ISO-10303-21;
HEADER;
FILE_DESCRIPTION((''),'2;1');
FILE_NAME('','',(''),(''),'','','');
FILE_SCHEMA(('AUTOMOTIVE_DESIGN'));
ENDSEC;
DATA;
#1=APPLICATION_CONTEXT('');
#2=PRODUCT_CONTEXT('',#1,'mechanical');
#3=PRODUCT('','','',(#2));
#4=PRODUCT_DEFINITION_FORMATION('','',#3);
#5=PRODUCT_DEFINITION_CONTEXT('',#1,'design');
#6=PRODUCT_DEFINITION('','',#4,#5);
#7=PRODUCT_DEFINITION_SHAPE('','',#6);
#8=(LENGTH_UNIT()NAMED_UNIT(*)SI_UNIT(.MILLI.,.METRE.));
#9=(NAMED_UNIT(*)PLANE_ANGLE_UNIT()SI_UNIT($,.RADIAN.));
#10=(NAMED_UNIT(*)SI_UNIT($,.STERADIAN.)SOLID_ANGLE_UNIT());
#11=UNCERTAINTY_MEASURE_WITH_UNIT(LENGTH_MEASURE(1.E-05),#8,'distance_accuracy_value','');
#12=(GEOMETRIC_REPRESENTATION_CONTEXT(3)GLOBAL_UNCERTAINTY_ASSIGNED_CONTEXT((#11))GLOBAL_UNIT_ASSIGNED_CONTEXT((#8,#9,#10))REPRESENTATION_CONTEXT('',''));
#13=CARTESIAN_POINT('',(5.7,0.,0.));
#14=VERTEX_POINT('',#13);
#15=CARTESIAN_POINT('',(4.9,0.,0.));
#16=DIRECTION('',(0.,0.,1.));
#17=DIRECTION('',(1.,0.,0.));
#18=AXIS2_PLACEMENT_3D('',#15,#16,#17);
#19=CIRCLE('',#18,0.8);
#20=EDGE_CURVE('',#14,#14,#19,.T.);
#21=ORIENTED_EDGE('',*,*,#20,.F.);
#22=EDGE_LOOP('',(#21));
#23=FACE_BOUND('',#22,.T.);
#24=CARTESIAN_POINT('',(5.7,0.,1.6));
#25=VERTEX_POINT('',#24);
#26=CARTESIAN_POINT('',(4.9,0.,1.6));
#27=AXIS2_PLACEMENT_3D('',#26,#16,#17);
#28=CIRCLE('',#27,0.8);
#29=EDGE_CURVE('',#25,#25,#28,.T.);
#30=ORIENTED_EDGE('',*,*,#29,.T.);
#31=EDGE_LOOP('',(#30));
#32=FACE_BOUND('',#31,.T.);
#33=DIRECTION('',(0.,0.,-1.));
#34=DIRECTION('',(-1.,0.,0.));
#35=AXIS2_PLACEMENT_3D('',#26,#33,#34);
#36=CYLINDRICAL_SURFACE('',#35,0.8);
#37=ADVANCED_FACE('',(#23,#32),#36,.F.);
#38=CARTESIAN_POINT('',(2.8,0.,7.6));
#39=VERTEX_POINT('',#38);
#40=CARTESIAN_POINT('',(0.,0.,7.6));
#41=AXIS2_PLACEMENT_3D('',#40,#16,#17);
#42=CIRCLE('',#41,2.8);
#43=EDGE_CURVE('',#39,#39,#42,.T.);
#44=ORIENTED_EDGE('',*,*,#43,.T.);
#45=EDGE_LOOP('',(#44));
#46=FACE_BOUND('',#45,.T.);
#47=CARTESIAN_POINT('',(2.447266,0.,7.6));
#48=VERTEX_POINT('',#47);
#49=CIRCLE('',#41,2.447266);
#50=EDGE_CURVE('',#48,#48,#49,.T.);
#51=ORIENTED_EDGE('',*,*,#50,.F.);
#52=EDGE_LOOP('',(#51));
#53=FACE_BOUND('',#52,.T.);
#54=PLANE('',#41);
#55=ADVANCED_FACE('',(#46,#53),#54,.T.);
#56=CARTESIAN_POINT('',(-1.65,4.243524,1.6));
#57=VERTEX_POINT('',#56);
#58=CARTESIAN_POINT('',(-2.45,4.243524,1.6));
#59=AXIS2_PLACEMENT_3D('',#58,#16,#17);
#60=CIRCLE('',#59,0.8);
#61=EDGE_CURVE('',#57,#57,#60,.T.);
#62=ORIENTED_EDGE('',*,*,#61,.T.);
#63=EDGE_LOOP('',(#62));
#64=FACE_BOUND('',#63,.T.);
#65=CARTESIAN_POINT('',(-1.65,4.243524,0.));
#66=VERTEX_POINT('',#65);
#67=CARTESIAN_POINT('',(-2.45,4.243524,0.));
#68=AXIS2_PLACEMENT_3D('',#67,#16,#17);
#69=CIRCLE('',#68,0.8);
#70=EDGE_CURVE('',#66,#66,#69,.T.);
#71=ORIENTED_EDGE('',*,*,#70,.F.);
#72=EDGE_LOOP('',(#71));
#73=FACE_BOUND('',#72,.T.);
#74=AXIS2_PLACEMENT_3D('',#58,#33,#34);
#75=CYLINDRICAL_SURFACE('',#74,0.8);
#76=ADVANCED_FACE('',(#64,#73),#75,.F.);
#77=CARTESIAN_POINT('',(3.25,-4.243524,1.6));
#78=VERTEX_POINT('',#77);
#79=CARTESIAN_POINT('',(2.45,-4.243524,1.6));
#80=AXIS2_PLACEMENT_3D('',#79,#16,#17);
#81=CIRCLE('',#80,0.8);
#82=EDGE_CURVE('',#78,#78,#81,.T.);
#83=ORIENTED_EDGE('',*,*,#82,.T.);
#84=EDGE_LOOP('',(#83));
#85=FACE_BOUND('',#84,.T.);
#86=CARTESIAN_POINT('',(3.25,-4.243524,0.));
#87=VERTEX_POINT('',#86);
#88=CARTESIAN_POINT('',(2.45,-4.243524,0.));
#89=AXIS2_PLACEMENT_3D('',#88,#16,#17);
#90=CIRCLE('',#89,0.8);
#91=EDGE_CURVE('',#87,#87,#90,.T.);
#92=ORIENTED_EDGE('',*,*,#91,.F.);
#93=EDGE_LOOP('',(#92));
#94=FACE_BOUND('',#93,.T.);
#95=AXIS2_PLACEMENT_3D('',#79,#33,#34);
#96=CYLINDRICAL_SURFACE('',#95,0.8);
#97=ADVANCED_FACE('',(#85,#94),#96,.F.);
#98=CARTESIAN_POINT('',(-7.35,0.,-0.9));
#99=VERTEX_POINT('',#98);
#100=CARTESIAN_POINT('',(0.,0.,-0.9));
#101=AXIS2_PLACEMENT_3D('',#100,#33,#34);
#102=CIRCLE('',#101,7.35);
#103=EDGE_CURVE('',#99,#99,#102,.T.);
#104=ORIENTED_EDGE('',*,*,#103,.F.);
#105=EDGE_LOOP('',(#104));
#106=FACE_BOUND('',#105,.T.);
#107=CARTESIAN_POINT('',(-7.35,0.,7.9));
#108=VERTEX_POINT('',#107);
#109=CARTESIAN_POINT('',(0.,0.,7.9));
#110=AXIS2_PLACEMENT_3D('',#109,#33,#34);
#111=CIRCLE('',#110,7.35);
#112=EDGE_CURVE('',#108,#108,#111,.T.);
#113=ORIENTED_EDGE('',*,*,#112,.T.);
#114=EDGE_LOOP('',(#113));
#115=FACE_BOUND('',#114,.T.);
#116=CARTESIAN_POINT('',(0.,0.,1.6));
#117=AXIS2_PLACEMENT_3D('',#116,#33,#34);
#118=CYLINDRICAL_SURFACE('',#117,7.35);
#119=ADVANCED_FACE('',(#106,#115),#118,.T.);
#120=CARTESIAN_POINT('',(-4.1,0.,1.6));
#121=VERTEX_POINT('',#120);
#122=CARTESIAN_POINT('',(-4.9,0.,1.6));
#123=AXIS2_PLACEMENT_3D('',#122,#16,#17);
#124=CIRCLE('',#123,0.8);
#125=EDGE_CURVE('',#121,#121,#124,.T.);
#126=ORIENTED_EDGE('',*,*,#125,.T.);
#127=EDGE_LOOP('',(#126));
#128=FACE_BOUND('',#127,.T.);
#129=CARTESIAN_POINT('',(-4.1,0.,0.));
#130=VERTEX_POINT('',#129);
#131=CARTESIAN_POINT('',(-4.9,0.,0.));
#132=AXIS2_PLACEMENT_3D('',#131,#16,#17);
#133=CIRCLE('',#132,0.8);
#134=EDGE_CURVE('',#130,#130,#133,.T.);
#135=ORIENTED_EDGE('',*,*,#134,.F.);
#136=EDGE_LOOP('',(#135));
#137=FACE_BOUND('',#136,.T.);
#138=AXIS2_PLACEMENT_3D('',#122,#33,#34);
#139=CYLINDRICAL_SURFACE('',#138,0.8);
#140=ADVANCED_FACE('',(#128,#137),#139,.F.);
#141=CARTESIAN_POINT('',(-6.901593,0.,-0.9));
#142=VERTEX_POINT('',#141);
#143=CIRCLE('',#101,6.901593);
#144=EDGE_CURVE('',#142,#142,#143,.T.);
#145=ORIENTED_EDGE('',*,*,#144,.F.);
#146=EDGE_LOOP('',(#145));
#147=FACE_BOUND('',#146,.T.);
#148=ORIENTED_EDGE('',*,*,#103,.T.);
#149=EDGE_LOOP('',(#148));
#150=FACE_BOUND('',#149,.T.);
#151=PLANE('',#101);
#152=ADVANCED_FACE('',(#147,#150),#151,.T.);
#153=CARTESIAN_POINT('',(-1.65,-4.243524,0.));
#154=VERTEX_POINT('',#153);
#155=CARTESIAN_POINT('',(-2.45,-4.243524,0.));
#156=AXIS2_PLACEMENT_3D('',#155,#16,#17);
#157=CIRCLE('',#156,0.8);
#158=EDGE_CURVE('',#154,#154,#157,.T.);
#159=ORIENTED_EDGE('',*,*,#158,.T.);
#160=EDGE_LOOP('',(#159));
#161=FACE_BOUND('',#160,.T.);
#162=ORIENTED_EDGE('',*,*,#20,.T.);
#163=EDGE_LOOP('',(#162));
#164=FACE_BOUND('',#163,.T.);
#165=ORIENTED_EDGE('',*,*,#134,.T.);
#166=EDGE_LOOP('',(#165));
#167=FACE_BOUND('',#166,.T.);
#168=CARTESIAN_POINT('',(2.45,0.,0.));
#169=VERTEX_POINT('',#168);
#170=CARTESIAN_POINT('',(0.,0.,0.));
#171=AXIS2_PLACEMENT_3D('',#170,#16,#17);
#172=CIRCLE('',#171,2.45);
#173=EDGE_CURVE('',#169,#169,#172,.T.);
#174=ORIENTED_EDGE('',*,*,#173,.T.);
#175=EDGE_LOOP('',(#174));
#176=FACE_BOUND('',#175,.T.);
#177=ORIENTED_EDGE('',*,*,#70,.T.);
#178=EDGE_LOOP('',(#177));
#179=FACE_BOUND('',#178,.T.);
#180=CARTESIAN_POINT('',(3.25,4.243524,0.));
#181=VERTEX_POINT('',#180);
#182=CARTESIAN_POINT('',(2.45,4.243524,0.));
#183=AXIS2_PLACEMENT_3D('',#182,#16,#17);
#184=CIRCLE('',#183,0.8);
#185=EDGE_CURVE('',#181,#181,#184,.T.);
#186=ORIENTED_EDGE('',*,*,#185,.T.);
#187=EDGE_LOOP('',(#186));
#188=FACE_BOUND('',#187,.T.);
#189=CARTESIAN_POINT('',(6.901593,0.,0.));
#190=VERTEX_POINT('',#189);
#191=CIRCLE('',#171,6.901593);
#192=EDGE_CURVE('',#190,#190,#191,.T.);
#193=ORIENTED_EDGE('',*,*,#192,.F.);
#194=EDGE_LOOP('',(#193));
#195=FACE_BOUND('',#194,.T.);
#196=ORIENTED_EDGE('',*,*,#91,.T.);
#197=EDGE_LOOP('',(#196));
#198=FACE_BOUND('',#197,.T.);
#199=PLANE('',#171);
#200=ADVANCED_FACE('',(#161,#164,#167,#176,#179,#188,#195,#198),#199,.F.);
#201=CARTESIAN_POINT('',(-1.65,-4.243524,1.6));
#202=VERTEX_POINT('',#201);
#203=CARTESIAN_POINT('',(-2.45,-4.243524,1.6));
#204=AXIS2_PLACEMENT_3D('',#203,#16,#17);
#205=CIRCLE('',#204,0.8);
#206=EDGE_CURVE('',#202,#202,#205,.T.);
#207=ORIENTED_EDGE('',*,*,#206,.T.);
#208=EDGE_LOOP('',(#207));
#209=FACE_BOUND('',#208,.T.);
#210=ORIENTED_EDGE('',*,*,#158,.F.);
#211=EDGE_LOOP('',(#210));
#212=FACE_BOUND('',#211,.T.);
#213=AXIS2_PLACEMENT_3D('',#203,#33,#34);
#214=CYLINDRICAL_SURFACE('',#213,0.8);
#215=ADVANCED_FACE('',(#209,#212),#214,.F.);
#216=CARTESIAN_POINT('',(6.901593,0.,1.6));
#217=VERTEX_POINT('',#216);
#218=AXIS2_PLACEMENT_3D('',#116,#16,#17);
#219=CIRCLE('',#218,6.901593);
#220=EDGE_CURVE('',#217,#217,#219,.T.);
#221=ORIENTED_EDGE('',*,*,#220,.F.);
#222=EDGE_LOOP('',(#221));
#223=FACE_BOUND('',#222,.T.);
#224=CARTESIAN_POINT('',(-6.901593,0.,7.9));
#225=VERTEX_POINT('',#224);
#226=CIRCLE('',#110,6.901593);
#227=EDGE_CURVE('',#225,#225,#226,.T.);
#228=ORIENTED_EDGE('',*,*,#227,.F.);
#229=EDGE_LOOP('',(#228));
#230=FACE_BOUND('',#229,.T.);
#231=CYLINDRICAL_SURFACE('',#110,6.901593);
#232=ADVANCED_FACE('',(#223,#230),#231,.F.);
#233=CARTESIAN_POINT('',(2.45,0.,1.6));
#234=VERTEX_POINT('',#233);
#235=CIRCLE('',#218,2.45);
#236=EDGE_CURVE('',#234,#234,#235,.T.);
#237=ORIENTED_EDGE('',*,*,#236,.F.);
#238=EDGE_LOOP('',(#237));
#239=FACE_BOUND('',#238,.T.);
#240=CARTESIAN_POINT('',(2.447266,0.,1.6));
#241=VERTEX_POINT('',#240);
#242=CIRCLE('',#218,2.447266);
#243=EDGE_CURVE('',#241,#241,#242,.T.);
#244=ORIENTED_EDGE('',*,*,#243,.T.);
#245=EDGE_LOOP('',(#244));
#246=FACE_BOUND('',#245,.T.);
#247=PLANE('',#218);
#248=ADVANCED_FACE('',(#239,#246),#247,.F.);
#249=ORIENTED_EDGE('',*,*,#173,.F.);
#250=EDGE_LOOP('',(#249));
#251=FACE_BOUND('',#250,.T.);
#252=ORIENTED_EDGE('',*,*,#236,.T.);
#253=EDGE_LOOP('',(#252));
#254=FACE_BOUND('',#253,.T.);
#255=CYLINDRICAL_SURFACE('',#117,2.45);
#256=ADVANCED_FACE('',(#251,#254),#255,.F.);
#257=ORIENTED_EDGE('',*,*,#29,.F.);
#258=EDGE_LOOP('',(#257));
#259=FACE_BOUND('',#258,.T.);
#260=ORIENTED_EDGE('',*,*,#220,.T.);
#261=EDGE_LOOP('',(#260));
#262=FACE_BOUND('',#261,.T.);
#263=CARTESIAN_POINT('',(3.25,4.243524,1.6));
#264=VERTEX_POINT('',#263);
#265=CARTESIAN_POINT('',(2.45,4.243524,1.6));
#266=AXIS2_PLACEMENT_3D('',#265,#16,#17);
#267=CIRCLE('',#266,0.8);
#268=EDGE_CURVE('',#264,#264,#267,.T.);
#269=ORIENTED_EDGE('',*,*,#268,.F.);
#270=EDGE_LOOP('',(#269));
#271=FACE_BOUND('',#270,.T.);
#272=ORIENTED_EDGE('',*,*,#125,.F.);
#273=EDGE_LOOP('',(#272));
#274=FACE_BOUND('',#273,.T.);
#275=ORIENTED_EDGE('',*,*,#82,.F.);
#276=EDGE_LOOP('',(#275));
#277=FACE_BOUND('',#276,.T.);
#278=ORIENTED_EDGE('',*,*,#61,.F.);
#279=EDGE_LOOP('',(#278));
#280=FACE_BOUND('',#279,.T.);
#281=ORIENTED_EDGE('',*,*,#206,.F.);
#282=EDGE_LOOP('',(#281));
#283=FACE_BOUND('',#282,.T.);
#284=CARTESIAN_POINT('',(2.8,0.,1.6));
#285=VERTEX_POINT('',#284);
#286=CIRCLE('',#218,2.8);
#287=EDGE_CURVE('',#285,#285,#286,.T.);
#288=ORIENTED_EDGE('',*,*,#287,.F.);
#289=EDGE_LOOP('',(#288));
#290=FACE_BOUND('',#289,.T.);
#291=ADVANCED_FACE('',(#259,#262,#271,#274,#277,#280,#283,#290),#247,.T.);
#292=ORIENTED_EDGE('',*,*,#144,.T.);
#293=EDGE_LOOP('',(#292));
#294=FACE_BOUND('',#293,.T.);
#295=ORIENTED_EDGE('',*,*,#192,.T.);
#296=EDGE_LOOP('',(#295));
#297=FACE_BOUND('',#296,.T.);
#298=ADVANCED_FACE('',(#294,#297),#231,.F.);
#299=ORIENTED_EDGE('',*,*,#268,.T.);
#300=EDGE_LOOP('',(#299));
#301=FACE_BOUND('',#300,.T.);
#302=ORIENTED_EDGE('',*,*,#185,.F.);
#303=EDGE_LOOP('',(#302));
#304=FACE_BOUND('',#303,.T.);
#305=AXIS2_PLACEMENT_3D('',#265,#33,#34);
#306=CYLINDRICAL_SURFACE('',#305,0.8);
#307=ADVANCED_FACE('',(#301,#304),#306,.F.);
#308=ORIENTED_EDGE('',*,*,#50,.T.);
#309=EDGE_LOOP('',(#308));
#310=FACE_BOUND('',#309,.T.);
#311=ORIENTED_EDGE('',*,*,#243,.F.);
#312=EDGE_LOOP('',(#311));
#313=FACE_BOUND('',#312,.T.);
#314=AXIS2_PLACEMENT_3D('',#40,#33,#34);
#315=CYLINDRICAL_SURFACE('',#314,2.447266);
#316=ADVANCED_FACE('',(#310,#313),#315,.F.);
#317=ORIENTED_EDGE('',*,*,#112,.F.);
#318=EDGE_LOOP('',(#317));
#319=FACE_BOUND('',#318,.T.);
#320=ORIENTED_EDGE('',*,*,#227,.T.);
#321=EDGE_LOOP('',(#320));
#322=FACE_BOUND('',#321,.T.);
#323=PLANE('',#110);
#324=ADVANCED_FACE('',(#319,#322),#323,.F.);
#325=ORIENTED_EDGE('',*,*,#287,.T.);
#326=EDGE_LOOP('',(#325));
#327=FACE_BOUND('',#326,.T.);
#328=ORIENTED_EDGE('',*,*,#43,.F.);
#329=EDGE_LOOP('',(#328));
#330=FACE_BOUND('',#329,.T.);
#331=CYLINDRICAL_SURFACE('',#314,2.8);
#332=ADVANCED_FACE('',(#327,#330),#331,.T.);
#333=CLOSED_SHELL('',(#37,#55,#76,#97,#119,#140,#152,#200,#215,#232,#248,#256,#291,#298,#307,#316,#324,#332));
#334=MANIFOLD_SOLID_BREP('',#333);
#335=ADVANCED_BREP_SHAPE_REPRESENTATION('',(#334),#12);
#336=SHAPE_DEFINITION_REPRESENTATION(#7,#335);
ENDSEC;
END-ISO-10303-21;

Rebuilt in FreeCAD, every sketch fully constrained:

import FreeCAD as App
import Part
import Sketcher

V = App.Vector
Q = App.Units.Quantity

doc = App.newDocument("Part")
body = doc.addObject("PartDesign::Body", "Body")

sketch1 = doc.addObject("Sketcher::SketchObject", "Sketch")
body.addObject(sketch1)
sketch1.AttachmentSupport = (doc.XY_Plane, [""])
sketch1.MapMode = "FlatFace"
sketch1.addGeometry([
    Part.Circle(V(0, 0, 0), V(0, 0, 1), 7.3),
    Part.Circle(V(-2.5, -4.2, 0), V(0, 0, 1), 0.8),
    Part.Circle(V(2.5, -4.2, 0), V(0, 0, 1), 0.8),
    Part.Circle(V(-4.9, 0, 0), V(0, 0, 1), 0.8),
    Part.Circle(V(-2.5, 4.2, 0), V(0, 0, 1), 0.8),
    Part.Circle(V(0, 0, 0), V(0, 0, 1), 2.5),
    Part.Circle(V(4.9, 0, 0), V(0, 0, 1), 0.8),
    Part.Circle(V(2.5, 4.2, 0), V(0, 0, 1), 0.8),
], False)
sketch1.addConstraint([
    Sketcher.Constraint("Coincident", 0, 3, -1, 1),
    Sketcher.Constraint("Coincident", 5, 3, -1, 1),
    Sketcher.Constraint("Equal", 1, 2),
    Sketcher.Constraint("Equal", 2, 3),
    Sketcher.Constraint("Equal", 3, 4),
    Sketcher.Constraint("Equal", 4, 6),
    Sketcher.Constraint("Equal", 6, 7),
    Sketcher.Constraint("Symmetric", 2, 3, 4, 3, -1, 1),
    Sketcher.Constraint("Symmetric", 3, 3, 6, 3, -1, 1),
    Sketcher.Constraint("Symmetric", 1, 3, 7, 3, -1, 1),
    Sketcher.Constraint("Symmetric", 1, 3, 2, 3, -2),
    Sketcher.Constraint("PointOnObject", 3, 3, -1),
    Sketcher.Constraint("Diameter", 0, Q("14.7 mm")),
    Sketcher.Constraint("Diameter", 1, Q("1.6 mm")),
    Sketcher.Constraint("Diameter", 5, Q("4.9 mm")),
    Sketcher.Constraint("DistanceX", 3, 3, -1, 1, Q("4.9 mm")),
    Sketcher.Constraint("DistanceX", 1, 3, 2, 3, Q("4.9 mm")),
    Sketcher.Constraint("DistanceY", 1, 3, 4, 3, Q("8.487049 mm")),
])
pad1 = doc.addObject("PartDesign::Pad", "Pad")
body.addObject(pad1)
pad1.Profile = sketch1
pad1.Length = 1.6

sketch2 = doc.addObject("Sketcher::SketchObject", "Sketch001")
body.addObject(sketch2)
sketch2.AttachmentSupport = (doc.XY_Plane, [""])
sketch2.MapMode = "FlatFace"
sketch2.AttachmentOffset = App.Placement(V(0, 0, 1.6), App.Rotation())
sketch2.addGeometry([
    Part.Circle(V(0, 0, 0), V(0, 0, 1), 2.8),
    Part.Circle(V(0, 0, 0), V(0, 0, 1), 2.4),
], False)
sketch2.addConstraint([
    Sketcher.Constraint("Coincident", 0, 3, -1, 1),
    Sketcher.Constraint("Coincident", 1, 3, -1, 1),
    Sketcher.Constraint("Diameter", 0, Q("5.6 mm")),
    Sketcher.Constraint("Diameter", 1, Q("4.894532 mm")),
])
pad2 = doc.addObject("PartDesign::Pad", "Pad001")
body.addObject(pad2)
pad2.Profile = sketch2
pad2.Length = 6

sketch3 = doc.addObject("Sketcher::SketchObject", "Sketch002")
body.addObject(sketch3)
sketch3.AttachmentSupport = (doc.XY_Plane, [""])
sketch3.MapMode = "FlatFace"
sketch3.addGeometry([
    Part.Circle(V(0, 0, 0), V(0, 0, 1), 7),
    Part.Circle(V(0, 0, 0), V(0, 0, 1), 7),
], False)
sketch3.addConstraint([
    Sketcher.Constraint("Coincident", 0, 3, -1, 1),
    Sketcher.Constraint("Coincident", 1, 3, -1, 1),
    Sketcher.Constraint("Diameter", 0, Q("14.7 mm")),
    Sketcher.Constraint("Diameter", 1, Q("13.803187 mm")),
])
pad3 = doc.addObject("PartDesign::Pad", "Pad002")
body.addObject(pad3)
pad3.Profile = sketch3
pad3.Type = "TwoLengths"
pad3.Length = 0.9
pad3.Length2 = 7.9
pad3.Reversed = True

doc.recompute()
